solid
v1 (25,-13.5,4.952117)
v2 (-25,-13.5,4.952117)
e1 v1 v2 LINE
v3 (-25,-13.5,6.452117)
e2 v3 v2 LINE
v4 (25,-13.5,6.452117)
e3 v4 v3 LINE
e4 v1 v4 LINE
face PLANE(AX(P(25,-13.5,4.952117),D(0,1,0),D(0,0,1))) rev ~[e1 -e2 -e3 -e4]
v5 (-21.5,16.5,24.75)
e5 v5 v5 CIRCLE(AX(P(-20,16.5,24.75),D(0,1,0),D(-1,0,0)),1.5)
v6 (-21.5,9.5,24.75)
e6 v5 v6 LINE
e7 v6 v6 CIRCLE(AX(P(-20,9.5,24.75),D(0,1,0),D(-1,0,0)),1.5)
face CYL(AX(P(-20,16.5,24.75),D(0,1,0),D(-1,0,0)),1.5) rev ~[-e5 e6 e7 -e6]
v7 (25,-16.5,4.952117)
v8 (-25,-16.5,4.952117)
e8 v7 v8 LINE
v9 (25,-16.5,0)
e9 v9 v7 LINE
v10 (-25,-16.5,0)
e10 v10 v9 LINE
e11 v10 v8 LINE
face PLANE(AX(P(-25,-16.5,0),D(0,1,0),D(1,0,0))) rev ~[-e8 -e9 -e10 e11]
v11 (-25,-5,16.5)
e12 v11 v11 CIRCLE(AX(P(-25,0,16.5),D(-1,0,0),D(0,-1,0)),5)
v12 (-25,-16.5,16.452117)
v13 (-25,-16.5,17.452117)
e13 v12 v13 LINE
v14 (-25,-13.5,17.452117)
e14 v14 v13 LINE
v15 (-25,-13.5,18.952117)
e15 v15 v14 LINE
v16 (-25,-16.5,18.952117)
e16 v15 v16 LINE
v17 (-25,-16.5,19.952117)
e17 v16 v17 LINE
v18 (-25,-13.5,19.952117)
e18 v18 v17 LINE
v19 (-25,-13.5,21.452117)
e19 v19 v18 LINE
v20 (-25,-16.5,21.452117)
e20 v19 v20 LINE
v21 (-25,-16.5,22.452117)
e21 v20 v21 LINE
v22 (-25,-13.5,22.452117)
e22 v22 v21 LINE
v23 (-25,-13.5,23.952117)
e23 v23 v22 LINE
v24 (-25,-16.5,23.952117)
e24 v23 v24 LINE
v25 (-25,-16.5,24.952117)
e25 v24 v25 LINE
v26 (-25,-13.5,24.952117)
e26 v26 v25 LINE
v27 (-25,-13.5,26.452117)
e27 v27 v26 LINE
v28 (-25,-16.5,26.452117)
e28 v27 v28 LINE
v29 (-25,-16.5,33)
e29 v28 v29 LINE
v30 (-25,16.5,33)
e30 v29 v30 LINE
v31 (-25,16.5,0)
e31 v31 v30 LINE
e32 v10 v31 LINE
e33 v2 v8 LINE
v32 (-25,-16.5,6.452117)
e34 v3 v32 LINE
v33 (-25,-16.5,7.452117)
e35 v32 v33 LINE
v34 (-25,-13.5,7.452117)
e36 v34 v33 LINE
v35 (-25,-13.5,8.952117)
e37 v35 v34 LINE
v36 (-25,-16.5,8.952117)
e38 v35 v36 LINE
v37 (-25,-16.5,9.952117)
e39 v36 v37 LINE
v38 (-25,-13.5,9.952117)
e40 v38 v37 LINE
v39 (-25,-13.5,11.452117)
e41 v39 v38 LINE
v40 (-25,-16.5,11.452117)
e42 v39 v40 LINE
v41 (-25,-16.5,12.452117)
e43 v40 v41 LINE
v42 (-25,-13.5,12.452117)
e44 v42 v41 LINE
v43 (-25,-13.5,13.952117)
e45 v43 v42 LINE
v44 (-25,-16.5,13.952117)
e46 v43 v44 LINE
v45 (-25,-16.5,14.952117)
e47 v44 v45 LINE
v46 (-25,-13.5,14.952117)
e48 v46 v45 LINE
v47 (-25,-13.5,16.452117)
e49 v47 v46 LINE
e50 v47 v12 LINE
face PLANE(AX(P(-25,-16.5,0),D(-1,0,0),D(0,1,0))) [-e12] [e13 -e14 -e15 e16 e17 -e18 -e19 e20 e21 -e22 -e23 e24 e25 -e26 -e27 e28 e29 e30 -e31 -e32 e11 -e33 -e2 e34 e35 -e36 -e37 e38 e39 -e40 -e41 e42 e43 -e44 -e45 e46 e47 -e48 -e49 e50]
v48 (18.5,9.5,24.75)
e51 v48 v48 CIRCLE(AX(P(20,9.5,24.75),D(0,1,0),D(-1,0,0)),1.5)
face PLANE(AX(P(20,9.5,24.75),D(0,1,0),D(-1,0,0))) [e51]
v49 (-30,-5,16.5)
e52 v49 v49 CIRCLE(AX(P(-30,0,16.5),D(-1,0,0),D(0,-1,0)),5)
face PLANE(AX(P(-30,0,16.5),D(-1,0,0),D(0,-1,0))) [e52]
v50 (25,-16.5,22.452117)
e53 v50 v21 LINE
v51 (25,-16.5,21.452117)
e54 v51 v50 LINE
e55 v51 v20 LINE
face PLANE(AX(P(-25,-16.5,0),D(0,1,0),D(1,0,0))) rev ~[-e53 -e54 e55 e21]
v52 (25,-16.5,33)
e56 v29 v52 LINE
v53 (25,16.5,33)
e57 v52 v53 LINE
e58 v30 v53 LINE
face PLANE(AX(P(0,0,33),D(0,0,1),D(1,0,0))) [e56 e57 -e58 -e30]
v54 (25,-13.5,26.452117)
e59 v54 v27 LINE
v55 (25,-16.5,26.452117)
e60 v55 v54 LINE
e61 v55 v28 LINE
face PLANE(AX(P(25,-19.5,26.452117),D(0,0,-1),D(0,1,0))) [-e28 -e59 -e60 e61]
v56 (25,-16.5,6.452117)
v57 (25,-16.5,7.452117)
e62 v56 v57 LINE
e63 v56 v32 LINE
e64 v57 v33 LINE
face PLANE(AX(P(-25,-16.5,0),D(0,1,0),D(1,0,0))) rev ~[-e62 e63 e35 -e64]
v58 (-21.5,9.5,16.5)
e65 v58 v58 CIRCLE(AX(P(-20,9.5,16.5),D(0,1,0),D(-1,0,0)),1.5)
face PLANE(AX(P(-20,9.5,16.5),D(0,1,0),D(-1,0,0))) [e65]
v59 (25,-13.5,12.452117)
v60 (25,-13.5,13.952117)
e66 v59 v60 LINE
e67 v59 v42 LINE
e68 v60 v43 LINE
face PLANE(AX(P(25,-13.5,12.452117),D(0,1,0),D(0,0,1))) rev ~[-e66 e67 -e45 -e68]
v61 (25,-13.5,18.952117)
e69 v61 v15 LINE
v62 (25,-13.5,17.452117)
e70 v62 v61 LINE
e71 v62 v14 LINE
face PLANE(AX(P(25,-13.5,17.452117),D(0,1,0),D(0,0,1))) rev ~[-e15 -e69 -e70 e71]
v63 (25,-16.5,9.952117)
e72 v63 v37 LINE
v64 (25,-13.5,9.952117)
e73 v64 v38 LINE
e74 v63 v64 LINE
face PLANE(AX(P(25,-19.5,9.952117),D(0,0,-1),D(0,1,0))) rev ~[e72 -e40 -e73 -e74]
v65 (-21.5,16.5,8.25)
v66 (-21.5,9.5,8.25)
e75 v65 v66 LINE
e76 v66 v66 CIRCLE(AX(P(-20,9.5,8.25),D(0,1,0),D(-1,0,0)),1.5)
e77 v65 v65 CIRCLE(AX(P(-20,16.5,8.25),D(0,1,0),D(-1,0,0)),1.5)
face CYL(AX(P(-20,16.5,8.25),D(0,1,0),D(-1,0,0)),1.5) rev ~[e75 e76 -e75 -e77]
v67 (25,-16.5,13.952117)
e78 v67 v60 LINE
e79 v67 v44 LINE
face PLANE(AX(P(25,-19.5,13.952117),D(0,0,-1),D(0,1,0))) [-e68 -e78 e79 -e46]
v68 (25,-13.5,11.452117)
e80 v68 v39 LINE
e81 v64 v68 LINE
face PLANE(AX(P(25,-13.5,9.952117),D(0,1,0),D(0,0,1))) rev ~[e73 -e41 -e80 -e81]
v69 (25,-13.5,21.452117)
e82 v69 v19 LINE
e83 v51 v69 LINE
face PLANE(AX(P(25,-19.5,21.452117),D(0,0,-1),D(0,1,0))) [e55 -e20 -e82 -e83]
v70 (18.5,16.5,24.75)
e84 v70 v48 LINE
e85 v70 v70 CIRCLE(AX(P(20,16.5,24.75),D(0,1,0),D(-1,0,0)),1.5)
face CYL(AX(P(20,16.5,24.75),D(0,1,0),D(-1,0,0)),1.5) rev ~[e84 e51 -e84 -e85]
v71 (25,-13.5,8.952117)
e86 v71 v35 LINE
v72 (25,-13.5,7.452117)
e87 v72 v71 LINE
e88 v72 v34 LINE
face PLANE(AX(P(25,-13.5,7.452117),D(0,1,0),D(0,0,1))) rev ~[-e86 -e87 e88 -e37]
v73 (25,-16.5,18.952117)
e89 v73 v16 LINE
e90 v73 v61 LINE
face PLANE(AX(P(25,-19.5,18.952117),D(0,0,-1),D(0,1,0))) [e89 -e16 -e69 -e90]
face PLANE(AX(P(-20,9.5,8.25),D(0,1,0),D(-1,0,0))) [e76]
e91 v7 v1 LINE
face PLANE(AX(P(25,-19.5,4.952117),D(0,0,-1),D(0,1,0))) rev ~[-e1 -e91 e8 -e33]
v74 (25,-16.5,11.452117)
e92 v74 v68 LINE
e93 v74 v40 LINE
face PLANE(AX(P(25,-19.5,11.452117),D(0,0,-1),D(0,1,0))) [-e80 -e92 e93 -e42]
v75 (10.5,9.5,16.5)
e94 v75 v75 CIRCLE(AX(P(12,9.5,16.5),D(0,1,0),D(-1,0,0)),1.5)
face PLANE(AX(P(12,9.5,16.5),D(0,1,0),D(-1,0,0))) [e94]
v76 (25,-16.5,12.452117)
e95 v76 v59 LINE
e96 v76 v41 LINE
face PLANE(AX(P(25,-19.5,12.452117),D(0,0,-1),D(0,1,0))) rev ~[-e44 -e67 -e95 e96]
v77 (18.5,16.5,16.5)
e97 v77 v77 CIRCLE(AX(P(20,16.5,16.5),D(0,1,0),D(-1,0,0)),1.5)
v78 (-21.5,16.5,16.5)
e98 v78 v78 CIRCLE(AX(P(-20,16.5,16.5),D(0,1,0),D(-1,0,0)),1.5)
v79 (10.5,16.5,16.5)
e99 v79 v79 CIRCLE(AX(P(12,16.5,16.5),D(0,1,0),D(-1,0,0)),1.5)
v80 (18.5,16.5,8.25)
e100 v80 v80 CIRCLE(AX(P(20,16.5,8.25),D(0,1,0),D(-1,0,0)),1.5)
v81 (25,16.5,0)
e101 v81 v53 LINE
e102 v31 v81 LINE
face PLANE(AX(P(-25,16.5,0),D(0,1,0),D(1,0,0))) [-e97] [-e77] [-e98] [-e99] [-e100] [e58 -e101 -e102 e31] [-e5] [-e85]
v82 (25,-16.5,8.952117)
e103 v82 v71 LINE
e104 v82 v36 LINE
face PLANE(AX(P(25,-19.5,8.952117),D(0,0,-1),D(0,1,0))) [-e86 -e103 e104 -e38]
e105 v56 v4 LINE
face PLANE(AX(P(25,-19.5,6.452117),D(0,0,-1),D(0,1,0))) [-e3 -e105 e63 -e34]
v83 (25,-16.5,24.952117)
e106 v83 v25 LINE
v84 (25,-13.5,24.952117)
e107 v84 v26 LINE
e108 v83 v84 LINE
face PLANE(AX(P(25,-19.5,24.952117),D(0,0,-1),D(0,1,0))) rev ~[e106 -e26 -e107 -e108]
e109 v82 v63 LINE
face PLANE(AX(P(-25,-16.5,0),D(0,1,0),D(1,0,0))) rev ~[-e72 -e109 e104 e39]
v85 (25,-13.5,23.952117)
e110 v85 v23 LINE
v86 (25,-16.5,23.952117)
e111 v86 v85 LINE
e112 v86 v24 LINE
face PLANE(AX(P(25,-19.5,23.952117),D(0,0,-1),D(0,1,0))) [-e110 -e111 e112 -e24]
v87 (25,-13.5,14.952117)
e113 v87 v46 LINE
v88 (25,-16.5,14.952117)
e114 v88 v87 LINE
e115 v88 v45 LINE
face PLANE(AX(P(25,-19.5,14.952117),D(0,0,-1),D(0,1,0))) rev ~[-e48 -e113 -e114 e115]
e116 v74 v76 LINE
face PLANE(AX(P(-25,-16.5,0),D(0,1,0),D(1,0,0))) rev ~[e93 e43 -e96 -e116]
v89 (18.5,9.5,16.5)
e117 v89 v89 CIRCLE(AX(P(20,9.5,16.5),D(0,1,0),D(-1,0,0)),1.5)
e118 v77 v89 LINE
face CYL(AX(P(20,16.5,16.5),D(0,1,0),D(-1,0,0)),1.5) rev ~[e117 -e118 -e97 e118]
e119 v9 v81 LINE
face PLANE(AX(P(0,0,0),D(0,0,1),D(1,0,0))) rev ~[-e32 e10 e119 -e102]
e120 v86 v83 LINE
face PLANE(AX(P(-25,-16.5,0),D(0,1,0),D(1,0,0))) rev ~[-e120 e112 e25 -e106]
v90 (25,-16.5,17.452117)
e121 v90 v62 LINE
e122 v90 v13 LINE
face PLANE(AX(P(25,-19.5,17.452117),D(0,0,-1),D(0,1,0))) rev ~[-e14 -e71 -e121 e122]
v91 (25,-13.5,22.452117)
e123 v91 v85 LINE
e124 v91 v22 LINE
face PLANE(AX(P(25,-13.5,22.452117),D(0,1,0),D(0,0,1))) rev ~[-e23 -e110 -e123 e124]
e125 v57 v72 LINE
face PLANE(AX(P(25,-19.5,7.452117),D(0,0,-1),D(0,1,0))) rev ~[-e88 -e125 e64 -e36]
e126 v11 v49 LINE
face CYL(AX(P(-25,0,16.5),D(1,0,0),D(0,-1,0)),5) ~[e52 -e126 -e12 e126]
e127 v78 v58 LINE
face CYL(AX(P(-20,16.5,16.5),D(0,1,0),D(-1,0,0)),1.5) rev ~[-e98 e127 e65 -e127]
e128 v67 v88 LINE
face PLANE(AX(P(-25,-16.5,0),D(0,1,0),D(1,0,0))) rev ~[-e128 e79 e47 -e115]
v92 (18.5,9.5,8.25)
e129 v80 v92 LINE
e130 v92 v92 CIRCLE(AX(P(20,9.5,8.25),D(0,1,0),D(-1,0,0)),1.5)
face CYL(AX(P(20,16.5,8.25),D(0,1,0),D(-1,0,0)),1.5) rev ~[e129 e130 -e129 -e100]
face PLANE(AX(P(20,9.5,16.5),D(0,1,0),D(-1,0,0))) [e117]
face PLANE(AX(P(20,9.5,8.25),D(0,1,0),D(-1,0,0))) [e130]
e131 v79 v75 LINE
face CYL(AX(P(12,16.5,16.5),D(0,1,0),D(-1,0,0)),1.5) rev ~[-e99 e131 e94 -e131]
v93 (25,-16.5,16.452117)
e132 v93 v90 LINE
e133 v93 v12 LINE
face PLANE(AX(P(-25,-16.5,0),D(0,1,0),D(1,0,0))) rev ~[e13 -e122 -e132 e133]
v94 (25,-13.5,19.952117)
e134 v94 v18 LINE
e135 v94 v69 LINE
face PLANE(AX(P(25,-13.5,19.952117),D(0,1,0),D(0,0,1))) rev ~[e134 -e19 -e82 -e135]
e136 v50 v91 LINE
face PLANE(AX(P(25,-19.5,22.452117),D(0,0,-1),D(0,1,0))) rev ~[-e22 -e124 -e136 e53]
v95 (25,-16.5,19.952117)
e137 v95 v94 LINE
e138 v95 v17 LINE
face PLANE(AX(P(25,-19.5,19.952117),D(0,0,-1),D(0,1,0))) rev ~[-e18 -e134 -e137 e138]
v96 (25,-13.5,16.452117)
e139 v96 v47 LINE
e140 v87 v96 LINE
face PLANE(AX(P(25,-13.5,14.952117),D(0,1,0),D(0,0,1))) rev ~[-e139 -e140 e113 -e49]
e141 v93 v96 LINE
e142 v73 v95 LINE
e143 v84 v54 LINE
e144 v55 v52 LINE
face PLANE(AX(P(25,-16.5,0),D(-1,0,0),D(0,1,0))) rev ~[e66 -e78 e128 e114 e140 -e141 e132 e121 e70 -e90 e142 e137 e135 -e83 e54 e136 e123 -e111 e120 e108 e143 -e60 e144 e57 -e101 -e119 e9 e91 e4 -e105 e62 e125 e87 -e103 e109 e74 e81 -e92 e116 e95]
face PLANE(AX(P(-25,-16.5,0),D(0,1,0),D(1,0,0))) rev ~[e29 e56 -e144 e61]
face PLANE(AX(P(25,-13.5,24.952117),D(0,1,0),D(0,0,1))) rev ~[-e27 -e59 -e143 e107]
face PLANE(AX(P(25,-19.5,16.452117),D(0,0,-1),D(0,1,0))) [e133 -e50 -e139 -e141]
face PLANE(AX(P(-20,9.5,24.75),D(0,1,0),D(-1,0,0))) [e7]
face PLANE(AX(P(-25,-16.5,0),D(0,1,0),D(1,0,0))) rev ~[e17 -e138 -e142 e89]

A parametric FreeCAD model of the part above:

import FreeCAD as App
import Part
import Sketcher
from FreeCAD import Vector
Q = App.Units.Quantity


def add_polygon(sketch, points):
    """Adds a closed chain of lines whose ends are joined by coincident constraints."""
    first, n = sketch.GeometryCount, len(points)
    for a, b in zip(points, points[1:] + points[:1]):
        sketch.addGeometry(Part.LineSegment(App.Vector(*a, 0), App.Vector(*b, 0)), False)
    for i in range(n):
        sketch.addConstraint(Sketcher.Constraint("Coincident", first + i, 2, first + (i + 1) % n, 1))

doc = App.newDocument("Part")
body = doc.addObject("PartDesign::Body", "Body")

# Sketch on XY plane
sketch1 = body.newObject("Sketcher::SketchObject", "Sketch")
sketch1.AttachmentSupport = (doc.getObject("XY_Plane"), [""])
sketch1.MapMode = "FlatFace"
add_polygon(sketch1, [(-25, 16), (-25, -16), (25, -16), (25, 16)])  # lines 0-3
sketch1.addConstraint(Sketcher.Constraint("Vertical", 0))
sketch1.addConstraint(Sketcher.Constraint("Horizontal", 1))
sketch1.addConstraint(Sketcher.Constraint("Vertical", 2))
sketch1.addConstraint(Sketcher.Constraint("Horizontal", 3))
sketch1.addConstraint(Sketcher.Constraint("Symmetric", 0, 2, 2, 2, -1, 1))
sketch1.addConstraint(Sketcher.Constraint("DistanceX", 1, 1, 1, 2, Q("50 mm")))
sketch1.addConstraint(Sketcher.Constraint("DistanceY", 0, 2, 0, 1, Q("33 mm")))
pad1 = body.newObject("PartDesign::Pad", "Pad")
pad1.Profile = sketch1
pad1.Length = 33

# Sketch on YZ plane
sketch2 = body.newObject("Sketcher::SketchObject", "Sketch001")
sketch2.AttachmentSupport = (doc.getObject("YZ_Plane"), [""])
sketch2.MapMode = "FlatFace"
sketch2.AttachmentOffset = App.Placement(Vector(0, 0, 25), App.Rotation())
add_polygon(sketch2, [(-19.5, 26.5), (-19.5, 25), (-13.5, 25), (-13.5, 26.5)])  # lines 0-3
add_polygon(sketch2, [(-19.5, 24), (-19.5, 22.5), (-13.5, 22.5), (-13.5, 24)])  # lines 4-7
add_polygon(sketch2, [(-19.5, 21.5), (-19.5, 20), (-13.5, 20), (-13.5, 21.5)])  # lines 8-11
add_polygon(sketch2, [(-19.5, 19), (-19.5, 17.5), (-13.5, 17.5), (-13.5, 19)])  # lines 12-15
add_polygon(sketch2, [(-19.5, 16.5), (-19.5, 15), (-13.5, 15), (-13.5, 16.5)])  # lines 16-19
add_polygon(sketch2, [(-19.5, 14), (-19.5, 12.5), (-13.5, 12.5), (-13.5, 14)])  # lines 20-23
add_polygon(sketch2, [(-19.5, 11.5), (-19.5, 10), (-13.5, 10), (-13.5, 11.5)])  # lines 24-27
add_polygon(sketch2, [(-19.5, 9), (-19.5, 7.5), (-13.5, 7.5), (-13.5, 9)])  # lines 28-31
add_polygon(sketch2, [(-19.5, 6.5), (-19.5, 5), (-13.5, 5), (-13.5, 6.5)])  # lines 32-35
sketch2.addConstraint(Sketcher.Constraint("Vertical", 0))
sketch2.addConstraint(Sketcher.Constraint("Horizontal", 1))
sketch2.addConstraint(Sketcher.Constraint("Vertical", 2))
sketch2.addConstraint(Sketcher.Constraint("Horizontal", 3))
sketch2.addConstraint(Sketcher.Constraint("Vertical", 4))
sketch2.addConstraint(Sketcher.Constraint("Horizontal", 5))
sketch2.addConstraint(Sketcher.Constraint("Vertical", 6))
sketch2.addConstraint(Sketcher.Constraint("Horizontal", 7))
sketch2.addConstraint(Sketcher.Constraint("Vertical", 8))
sketch2.addConstraint(Sketcher.Constraint("Horizontal", 9))
sketch2.addConstraint(Sketcher.Constraint("Vertical", 10))
sketch2.addConstraint(Sketcher.Constraint("Horizontal", 11))
sketch2.addConstraint(Sketcher.Constraint("Vertical", 12))
sketch2.addConstraint(Sketcher.Constraint("Horizontal", 13))
sketch2.addConstraint(Sketcher.Constraint("Vertical", 14))
sketch2.addConstraint(Sketcher.Constraint("Horizontal", 15))
sketch2.addConstraint(Sketcher.Constraint("Vertical", 16))
sketch2.addConstraint(Sketcher.Constraint("Horizontal", 17))
sketch2.addConstraint(Sketcher.Constraint("Vertical", 18))
sketch2.addConstraint(Sketcher.Constraint("Horizontal", 19))
sketch2.addConstraint(Sketcher.Constraint("Vertical", 20))
sketch2.addConstraint(Sketcher.Constraint("Horizontal", 21))
sketch2.addConstraint(Sketcher.Constraint("Vertical", 22))
sketch2.addConstraint(Sketcher.Constraint("Horizontal", 23))
sketch2.addConstraint(Sketcher.Constraint("Vertical", 24))
sketch2.addConstraint(Sketcher.Constraint("Horizontal", 25))
sketch2.addConstraint(Sketcher.Constraint("Vertical", 26))
sketch2.addConstraint(Sketcher.Constraint("Horizontal", 27))
sketch2.addConstraint(Sketcher.Constraint("Vertical", 28))
sketch2.addConstraint(Sketcher.Constraint("Horizontal", 29))
sketch2.addConstraint(Sketcher.Constraint("Vertical", 30))
sketch2.addConstraint(Sketcher.Constraint("Horizontal", 31))
sketch2.addConstraint(Sketcher.Constraint("Vertical", 32))
sketch2.addConstraint(Sketcher.Constraint("Horizontal", 33))
sketch2.addConstraint(Sketcher.Constraint("Vertical", 34))
sketch2.addConstraint(Sketcher.Constraint("Horizontal", 35))
sketch2.addConstraint(Sketcher.Constraint("Vertical", 3, 2, 4, 2))
sketch2.addConstraint(Sketcher.Constraint("Vertical", 2, 2, 5, 2))
sketch2.addConstraint(Sketcher.Constraint("Vertical", 7, 2, 8, 2))
sketch2.addConstraint(Sketcher.Constraint("Vertical", 6, 2, 9, 2))
sketch2.addConstraint(Sketcher.Constraint("Vertical", 11, 2, 12, 2))
sketch2.addConstraint(Sketcher.Constraint("Vertical", 10, 2, 13, 2))
sketch2.addConstraint(Sketcher.Constraint("Vertical", 15, 2, 16, 2))
sketch2.addConstraint(Sketcher.Constraint("Vertical", 14, 2, 17, 2))
sketch2.addConstraint(Sketcher.Constraint("Vertical", 19, 2, 20, 2))
sketch2.addConstraint(Sketcher.Constraint("Vertical", 18, 2, 21, 2))
sketch2.addConstraint(Sketcher.Constraint("Vertical", 23, 2, 24, 2))
sketch2.addConstraint(Sketcher.Constraint("Vertical", 22, 2, 25, 2))
sketch2.addConstraint(Sketcher.Constraint("Vertical", 27, 2, 28, 2))
sketch2.addConstraint(Sketcher.Constraint("Vertical", 26, 2, 29, 2))
sketch2.addConstraint(Sketcher.Constraint("Vertical", 31, 2, 32, 2))
sketch2.addConstraint(Sketcher.Constraint("Vertical", 30, 2, 33, 2))
sketch2.addConstraint(Sketcher.Constraint("Equal", 2, 4))
sketch2.addConstraint(Sketcher.Constraint("Equal", 6, 8))
sketch2.addConstraint(Sketcher.Constraint("Equal", 10, 12))
sketch2.addConstraint(Sketcher.Constraint("Equal", 14, 16))
sketch2.addConstraint(Sketcher.Constraint("Equal", 18, 20))
sketch2.addConstraint(Sketcher.Constraint("Equal", 22, 24))
sketch2.addConstraint(Sketcher.Constraint("Equal", 26, 28))
sketch2.addConstraint(Sketcher.Constraint("Equal", 30, 32))
sketch2.addConstraint(Sketcher.Constraint("DistanceX", 1, 1, 1, 2, Q("6 mm")))
sketch2.addConstraint(Sketcher.Constraint("DistanceY", 0, 2, 0, 1, Q("1.5 mm")))
sketch2.addConstraint(Sketcher.Constraint("DistanceY", 4, 2, 3, 2, Q("4 mm")))
sketch2.addConstraint(Sketcher.Constraint("DistanceY", 8, 2, 7, 2, Q("4 mm")))
sketch2.addConstraint(Sketcher.Constraint("DistanceY", 12, 2, 11, 2, Q("4 mm")))
sketch2.addConstraint(Sketcher.Constraint("DistanceY", 16, 2, 15, 2, Q("4 mm")))
sketch2.addConstraint(Sketcher.Constraint("DistanceY", 20, 2, 19, 2, Q("4 mm")))
sketch2.addConstraint(Sketcher.Constraint("DistanceY", 24, 2, 23, 2, Q("4 mm")))
sketch2.addConstraint(Sketcher.Constraint("DistanceY", 28, 2, 27, 2, Q("4 mm")))
sketch2.addConstraint(Sketcher.Constraint("DistanceY", 32, 2, 31, 2, Q("4 mm")))
sketch2.addConstraint(Sketcher.Constraint("DistanceX", 0, 2, -1, 1, Q("19.5 mm")))
sketch2.addConstraint(Sketcher.Constraint("DistanceY", -1, 1, 0, 2, Q("24.952117 mm")))
pocket1 = body.newObject("PartDesign::Pocket", "Pocket")
pocket1.Profile = sketch2
pocket1.Type = "ThroughAll"

# Sketch on YZ plane
sketch3 = body.newObject("Sketcher::SketchObject", "Sketch002")
sketch3.AttachmentSupport = (doc.getObject("YZ_Plane"), [""])
sketch3.MapMode = "FlatFace"
sketch3.AttachmentOffset = App.Placement(Vector(0, 0, -25), App.Rotation())
sketch3.addGeometry(Part.Circle(Vector(0, 16, 0), Vector(0, 0, 1), 5), False)
sketch3.addConstraint(Sketcher.Constraint("PointOnObject", 0, 3, -2))
sketch3.addConstraint(Sketcher.Constraint("Diameter", 0, Q("10 mm")))
sketch3.addConstraint(Sketcher.Constraint("DistanceY", -1, 1, 0, 3, Q("16.5 mm")))
pad2 = body.newObject("PartDesign::Pad", "Pad001")
pad2.Profile = sketch3
pad2.Length = 5
pad2.Reversed = True

# Sketch on XZ plane
sketch4 = body.newObject("Sketcher::SketchObject", "Sketch003")
sketch4.AttachmentSupport = (doc.getObject("XZ_Plane"), [""])
sketch4.MapMode = "FlatFace"
sketch4.AttachmentOffset = App.Placement(Vector(0, 0, -16.5), App.Rotation())
sketch4.addGeometry(Part.Circle(Vector(20, 8.2, 0), Vector(0, 0, 1), 1.5), False)
sketch4.addGeometry(Part.Circle(Vector(20, 16.5, 0), Vector(0, 0, 1), 1.5), False)
sketch4.addGeometry(Part.Circle(Vector(20, 24.8, 0), Vector(0, 0, 1), 1.5), False)
sketch4.addGeometry(Part.Circle(Vector(12, 16.5, 0), Vector(0, 0, 1), 1.5), False)
sketch4.addGeometry(Part.Circle(Vector(-20, 16.5, 0), Vector(0, 0, 1), 1.5), False)
sketch4.addGeometry(Part.Circle(Vector(-20, 8.2, 0), Vector(0, 0, 1), 1.5), False)
sketch4.addGeometry(Part.Circle(Vector(-20, 24.8, 0), Vector(0, 0, 1), 1.5), False)
sketch4.addConstraint(Sketcher.Constraint("Equal", 0, 1))
sketch4.addConstraint(Sketcher.Constraint("Equal", 1, 2))
sketch4.addConstraint(Sketcher.Constraint("Equal", 2, 3))
sketch4.addConstraint(Sketcher.Constraint("Equal", 3, 4))
sketch4.addConstraint(Sketcher.Constraint("Equal", 4, 5))
sketch4.addConstraint(Sketcher.Constraint("Equal", 5, 6))
sketch4.addConstraint(Sketcher.Constraint("Symmetric", 1, 3, 4, 3, -2))
sketch4.addConstraint(Sketcher.Constraint("Symmetric", 0, 3, 5, 3, -2))
sketch4.addConstraint(Sketcher.Constraint("Symmetric", 2, 3, 6, 3, -2))
sketch4.addConstraint(Sketcher.Constraint("Horizontal", 1, 3, 3, 3))
sketch4.addConstraint(Sketcher.Constraint("Vertical", 0, 3, 1, 3))
sketch4.addConstraint(Sketcher.Constraint("Vertical", 1, 3, 2, 3))
sketch4.addConstraint(Sketcher.Constraint("Diameter", 0, Q("3 mm")))
sketch4.addConstraint(Sketcher.Constraint("DistanceX", -1, 1, 0, 3, Q("20 mm")))
sketch4.addConstraint(Sketcher.Constraint("DistanceX", -1, 1, 3, 3, Q("12 mm")))
sketch4.addConstraint(Sketcher.Constraint("DistanceY", -1, 1, 1, 3, Q("16.5 mm")))
sketch4.addConstraint(Sketcher.Constraint("DistanceY", 0, 3, 2, 3, Q("16.5 mm")))
sketch4.addConstraint(Sketcher.Constraint("DistanceY", -1, 1, 0, 3, Q("8.25 mm")))
pocket2 = body.newObject("PartDesign::Pocket", "Pocket001")
pocket2.Profile = sketch4
pocket2.Length = 7
pocket2.Reversed = True

doc.recompute()
